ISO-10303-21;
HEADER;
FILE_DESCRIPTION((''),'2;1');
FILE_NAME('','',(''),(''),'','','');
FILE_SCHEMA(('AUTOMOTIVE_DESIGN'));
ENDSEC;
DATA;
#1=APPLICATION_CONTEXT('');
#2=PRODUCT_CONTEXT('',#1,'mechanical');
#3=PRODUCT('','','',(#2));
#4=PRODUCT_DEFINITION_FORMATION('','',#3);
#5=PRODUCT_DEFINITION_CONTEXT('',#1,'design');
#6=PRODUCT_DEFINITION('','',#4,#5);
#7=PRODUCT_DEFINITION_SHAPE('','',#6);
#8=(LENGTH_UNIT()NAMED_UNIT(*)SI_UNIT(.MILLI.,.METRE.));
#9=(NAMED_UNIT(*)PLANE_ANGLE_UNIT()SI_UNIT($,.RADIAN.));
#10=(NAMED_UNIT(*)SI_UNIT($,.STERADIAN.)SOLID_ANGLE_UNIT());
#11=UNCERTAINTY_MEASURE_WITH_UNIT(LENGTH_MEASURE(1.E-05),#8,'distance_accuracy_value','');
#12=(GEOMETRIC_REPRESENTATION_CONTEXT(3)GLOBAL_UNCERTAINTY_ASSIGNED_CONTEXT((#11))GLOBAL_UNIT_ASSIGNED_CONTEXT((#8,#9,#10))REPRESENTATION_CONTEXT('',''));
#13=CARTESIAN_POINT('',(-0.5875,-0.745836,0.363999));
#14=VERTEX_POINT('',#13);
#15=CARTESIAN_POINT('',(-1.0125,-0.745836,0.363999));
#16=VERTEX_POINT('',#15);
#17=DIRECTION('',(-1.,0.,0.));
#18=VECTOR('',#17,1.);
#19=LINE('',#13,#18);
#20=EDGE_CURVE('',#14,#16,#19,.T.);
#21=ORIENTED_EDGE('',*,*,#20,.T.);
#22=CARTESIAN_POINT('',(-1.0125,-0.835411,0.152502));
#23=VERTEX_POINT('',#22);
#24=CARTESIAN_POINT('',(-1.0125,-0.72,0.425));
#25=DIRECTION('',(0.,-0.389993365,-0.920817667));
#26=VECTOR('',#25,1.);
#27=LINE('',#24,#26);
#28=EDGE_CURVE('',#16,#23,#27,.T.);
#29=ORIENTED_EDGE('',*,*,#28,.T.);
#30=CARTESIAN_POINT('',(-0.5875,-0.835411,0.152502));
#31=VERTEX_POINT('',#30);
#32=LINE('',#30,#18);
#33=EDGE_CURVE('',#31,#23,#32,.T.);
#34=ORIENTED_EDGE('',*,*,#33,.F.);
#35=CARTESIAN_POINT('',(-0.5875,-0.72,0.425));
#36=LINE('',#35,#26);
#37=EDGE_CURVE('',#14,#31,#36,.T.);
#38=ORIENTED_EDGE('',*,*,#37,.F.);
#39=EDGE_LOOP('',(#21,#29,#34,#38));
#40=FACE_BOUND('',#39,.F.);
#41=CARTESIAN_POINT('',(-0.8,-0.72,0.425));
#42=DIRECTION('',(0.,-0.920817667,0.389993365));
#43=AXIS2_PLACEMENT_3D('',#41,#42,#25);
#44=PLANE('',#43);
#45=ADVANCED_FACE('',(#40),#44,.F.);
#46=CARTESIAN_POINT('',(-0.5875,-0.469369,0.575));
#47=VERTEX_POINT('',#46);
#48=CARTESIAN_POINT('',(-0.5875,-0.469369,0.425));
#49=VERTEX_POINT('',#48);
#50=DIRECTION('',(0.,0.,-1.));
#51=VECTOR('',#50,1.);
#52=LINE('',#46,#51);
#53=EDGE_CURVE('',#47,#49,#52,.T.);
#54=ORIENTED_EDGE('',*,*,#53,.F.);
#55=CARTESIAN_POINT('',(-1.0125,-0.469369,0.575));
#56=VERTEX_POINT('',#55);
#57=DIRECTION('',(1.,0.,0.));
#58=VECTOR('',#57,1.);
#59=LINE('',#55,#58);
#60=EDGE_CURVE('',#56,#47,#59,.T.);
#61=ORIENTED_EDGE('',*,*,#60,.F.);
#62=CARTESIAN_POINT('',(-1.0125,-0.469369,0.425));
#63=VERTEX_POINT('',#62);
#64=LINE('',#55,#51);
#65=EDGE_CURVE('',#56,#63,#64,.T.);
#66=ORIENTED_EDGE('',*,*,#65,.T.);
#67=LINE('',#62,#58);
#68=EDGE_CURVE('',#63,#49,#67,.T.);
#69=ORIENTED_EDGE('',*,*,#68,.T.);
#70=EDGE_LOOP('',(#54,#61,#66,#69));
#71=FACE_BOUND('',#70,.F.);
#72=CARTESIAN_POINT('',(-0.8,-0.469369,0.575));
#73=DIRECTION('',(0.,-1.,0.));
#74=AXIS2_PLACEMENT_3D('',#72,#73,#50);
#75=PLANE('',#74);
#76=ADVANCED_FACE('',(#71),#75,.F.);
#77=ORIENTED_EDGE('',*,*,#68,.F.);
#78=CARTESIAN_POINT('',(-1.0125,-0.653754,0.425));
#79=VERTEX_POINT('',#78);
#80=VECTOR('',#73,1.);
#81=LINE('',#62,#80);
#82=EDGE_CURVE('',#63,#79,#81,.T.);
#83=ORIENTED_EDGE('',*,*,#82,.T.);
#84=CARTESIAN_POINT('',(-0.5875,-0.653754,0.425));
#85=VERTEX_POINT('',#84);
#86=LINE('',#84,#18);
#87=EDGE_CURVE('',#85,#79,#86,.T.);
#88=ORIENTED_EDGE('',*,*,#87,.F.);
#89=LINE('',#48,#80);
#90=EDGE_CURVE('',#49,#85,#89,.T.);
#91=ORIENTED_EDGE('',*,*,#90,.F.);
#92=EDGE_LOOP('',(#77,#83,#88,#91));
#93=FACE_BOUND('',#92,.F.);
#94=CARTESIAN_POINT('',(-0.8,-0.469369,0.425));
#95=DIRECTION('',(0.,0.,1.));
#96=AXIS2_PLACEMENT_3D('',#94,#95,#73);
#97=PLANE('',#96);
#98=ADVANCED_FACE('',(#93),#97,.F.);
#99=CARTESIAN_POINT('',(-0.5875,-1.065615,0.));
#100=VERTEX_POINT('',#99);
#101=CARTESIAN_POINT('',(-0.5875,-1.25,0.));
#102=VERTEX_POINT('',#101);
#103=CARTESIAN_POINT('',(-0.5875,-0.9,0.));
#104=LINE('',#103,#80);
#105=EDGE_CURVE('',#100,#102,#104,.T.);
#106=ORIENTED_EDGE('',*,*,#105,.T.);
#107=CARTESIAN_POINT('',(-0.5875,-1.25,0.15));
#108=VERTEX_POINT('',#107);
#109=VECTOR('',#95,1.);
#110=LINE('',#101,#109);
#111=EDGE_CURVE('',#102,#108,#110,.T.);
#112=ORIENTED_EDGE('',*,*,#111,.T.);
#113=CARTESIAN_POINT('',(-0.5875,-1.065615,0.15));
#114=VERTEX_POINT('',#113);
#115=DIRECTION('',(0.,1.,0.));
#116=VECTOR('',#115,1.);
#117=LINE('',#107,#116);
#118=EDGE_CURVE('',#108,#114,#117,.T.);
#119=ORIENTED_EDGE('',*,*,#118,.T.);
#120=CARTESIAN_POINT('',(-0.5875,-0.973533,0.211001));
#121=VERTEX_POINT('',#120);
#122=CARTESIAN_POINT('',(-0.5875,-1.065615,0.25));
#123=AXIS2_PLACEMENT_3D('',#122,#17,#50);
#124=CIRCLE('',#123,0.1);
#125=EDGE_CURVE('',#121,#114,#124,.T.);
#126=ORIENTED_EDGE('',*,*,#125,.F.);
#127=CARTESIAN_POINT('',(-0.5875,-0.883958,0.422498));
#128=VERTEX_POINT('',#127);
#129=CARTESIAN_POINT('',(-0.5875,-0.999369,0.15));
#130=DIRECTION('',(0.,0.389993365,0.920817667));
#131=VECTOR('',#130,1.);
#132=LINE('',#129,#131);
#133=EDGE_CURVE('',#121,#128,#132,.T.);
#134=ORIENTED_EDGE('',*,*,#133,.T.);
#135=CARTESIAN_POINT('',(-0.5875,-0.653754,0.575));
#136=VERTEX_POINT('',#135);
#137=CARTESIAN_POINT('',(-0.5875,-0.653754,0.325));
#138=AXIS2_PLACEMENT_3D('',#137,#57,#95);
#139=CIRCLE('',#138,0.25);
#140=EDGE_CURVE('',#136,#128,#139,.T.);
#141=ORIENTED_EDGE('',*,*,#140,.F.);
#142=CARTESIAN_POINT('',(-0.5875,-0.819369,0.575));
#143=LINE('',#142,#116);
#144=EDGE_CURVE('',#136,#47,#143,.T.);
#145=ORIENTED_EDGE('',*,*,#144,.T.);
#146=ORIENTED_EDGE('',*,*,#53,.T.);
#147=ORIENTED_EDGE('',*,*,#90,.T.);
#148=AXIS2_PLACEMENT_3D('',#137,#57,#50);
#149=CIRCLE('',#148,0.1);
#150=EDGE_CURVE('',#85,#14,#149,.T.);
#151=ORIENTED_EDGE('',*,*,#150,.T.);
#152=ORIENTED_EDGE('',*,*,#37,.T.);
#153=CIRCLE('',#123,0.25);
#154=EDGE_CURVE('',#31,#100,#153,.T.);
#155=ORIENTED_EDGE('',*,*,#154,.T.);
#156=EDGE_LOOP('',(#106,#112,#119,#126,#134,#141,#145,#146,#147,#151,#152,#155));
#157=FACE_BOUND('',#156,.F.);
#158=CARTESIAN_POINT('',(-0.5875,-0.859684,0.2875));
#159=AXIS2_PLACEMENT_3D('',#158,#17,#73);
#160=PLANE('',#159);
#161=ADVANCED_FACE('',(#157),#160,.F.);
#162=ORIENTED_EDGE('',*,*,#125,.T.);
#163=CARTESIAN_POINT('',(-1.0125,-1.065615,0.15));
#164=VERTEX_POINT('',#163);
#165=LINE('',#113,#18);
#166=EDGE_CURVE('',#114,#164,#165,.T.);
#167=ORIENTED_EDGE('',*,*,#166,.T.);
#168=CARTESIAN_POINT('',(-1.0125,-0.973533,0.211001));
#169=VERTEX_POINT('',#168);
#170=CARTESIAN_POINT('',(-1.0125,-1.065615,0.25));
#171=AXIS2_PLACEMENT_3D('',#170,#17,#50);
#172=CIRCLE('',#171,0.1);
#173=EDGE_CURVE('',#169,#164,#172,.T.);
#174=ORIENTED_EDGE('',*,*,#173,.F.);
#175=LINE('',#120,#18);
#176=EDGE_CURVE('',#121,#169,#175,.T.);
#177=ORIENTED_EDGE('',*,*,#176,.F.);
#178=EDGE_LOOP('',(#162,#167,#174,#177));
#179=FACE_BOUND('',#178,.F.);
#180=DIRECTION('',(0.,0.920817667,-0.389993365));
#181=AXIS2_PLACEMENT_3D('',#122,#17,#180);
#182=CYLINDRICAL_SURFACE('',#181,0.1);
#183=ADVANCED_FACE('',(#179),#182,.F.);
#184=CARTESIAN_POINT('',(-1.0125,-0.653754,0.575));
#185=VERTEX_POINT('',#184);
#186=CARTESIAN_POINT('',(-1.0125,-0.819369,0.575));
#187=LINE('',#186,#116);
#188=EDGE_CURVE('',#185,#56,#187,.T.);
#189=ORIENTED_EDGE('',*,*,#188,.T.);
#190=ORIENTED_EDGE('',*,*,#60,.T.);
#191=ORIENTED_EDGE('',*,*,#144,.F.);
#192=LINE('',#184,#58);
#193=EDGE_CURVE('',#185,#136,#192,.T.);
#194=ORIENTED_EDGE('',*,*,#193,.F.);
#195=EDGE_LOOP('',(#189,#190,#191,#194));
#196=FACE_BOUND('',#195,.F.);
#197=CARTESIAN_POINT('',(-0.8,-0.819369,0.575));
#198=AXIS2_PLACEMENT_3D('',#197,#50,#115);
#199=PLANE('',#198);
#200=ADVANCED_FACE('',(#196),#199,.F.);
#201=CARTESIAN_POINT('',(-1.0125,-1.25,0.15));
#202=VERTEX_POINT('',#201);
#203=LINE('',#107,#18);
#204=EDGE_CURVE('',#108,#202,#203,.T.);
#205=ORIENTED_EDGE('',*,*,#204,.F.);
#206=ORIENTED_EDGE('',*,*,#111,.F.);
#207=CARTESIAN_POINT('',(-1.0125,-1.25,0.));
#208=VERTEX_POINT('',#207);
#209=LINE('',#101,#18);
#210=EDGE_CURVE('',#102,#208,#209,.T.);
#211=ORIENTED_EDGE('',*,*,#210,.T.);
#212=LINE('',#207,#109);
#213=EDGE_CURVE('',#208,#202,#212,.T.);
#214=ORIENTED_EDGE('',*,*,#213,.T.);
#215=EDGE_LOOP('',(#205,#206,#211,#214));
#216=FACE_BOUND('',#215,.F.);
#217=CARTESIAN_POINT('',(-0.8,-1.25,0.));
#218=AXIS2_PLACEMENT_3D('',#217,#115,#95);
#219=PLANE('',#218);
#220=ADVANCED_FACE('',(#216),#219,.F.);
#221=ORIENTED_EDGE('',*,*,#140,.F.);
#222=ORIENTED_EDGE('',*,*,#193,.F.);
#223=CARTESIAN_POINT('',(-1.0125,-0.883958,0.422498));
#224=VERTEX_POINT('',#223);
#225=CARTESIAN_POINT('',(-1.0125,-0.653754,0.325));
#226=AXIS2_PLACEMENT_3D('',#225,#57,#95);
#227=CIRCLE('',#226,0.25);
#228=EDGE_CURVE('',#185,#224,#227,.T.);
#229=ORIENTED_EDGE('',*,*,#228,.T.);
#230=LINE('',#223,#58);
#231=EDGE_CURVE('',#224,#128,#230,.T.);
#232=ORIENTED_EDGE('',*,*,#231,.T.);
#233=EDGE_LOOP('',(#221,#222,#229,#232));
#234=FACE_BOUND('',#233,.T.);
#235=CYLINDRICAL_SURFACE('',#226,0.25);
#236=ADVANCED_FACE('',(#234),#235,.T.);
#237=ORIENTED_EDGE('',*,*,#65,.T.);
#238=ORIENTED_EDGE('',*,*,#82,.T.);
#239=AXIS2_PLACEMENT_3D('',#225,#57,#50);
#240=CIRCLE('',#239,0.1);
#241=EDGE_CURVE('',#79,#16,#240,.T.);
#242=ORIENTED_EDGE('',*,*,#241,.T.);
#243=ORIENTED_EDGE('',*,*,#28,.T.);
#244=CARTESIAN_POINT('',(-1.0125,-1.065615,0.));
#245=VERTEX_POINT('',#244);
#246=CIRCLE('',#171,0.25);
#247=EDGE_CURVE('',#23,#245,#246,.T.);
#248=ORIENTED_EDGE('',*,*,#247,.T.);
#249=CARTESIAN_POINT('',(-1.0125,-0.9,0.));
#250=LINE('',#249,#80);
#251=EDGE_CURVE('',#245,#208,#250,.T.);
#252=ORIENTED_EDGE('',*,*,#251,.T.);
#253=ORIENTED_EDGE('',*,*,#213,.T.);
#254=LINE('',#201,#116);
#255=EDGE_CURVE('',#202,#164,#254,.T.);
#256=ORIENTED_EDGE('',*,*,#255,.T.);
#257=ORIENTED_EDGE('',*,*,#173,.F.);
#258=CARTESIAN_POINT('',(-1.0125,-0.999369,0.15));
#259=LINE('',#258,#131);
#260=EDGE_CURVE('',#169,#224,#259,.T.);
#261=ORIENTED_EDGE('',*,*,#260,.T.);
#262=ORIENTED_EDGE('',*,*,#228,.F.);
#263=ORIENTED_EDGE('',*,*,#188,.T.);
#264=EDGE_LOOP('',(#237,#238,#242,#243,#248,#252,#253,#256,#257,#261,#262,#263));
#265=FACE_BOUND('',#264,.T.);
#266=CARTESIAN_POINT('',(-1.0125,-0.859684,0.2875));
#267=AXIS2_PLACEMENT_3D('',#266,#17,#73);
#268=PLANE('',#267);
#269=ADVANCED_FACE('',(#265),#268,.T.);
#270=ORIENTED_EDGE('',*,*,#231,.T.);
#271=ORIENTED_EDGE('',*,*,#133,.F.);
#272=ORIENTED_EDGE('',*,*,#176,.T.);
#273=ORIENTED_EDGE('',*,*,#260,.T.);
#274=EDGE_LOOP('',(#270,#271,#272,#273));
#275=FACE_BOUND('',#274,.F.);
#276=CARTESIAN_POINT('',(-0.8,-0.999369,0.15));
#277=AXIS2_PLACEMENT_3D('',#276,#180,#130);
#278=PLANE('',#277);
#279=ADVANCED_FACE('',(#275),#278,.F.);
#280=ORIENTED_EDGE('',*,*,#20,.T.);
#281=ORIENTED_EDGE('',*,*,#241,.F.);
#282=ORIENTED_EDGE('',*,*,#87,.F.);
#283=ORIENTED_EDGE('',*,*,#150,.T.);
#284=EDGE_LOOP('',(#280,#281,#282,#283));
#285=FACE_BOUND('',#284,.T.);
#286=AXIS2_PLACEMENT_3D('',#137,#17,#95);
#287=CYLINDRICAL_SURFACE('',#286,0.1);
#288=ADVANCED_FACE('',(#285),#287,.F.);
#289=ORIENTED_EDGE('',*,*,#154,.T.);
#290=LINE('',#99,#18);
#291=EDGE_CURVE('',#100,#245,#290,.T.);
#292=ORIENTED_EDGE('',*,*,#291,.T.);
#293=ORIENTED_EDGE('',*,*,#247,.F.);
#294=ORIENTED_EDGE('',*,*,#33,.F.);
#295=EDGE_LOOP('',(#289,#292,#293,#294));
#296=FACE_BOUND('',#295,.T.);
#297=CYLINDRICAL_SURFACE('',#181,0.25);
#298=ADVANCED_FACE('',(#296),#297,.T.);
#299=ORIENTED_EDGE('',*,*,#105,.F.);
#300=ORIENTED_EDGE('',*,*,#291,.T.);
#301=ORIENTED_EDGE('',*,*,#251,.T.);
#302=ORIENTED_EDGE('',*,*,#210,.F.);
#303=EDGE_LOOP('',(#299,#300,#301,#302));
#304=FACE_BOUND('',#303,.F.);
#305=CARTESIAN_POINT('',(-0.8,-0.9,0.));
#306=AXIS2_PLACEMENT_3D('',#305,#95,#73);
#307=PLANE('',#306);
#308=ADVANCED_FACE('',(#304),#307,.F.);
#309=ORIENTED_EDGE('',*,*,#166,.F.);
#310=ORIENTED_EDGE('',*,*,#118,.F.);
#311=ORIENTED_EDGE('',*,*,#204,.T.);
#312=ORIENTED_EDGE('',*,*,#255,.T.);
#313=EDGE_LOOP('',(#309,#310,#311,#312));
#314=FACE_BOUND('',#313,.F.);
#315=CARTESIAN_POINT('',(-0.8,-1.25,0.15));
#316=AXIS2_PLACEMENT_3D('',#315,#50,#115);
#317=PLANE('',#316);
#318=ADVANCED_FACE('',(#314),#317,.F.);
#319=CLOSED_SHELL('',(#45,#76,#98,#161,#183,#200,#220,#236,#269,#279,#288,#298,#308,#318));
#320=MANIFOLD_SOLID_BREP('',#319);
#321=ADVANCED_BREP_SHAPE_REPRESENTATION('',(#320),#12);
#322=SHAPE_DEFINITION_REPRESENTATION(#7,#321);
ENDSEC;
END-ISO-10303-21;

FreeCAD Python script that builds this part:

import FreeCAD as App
import Part
import Sketcher

V = App.Vector
Q = App.Units.Quantity


def edges_at(feature, points):
    """Names of the edges that pass closest to the given points."""
    edges = feature.Shape.Edges
    near = lambda p: min(range(len(edges)), key=lambda i: edges[i].distToShape(Part.Vertex(*p))[0])
    return sorted({f"Edge{near(p) + 1}" for p in points})


def add_polygon(sketch, points):
    """Adds a closed chain of lines whose ends are joined by coincident constraints."""
    first, n = sketch.GeometryCount, len(points)
    for a, b in zip(points, points[1:] + points[:1]):
        sketch.addGeometry(Part.LineSegment(App.Vector(*a, 0), App.Vector(*b, 0)), False)
    for i in range(n):
        sketch.addConstraint(Sketcher.Constraint("Coincident", first + i, 2, first + (i + 1) % n, 1))

doc = App.newDocument("Part")
body = doc.addObject("PartDesign::Body", "Body")

# Sketch on YZ plane
sketch1 = body.newObject("Sketcher::SketchObject", "Sketch")
sketch1.AttachmentSupport = (doc.getObject("YZ_Plane"), [""])
sketch1.MapMode = "FlatFace"
add_polygon(sketch1, [(-0.72, 0.425), (-0.469369, 0.425), (-0.469369, 0.575), (-0.819369, 0.575), (-0.999369, 0.15), (-1.25, 0.15), (-1.25, 0), (-0.9, 0)])  # lines 0-7
sketch1.addConstraint([
    Sketcher.Constraint("Horizontal", 0),
    Sketcher.Constraint("Vertical", 1),
    Sketcher.Constraint("Horizontal", 2),
    Sketcher.Constraint("Horizontal", 4),
    Sketcher.Constraint("Vertical", 5),
    Sketcher.Constraint("Horizontal", 6),
    Sketcher.Constraint("PointOnObject", 5, 2, -1),
    Sketcher.Constraint("Parallel", 3, 7),
    Sketcher.Constraint("Equal", 0, 4),
    Sketcher.Constraint("Equal", 2, 6),
    Sketcher.Constraint("DistanceX", 2, 2, 2, 1, Q("0.35 mm")),
    Sketcher.Constraint("DistanceY", 1, 1, 1, 2, Q("0.15 mm")),
    Sketcher.Constraint("DistanceX", 6, 2, -1, 1, Q("0.9 mm")),
    Sketcher.Constraint("DistanceX", 7, 2, -1, 1, Q("0.72 mm")),
    Sketcher.Constraint("DistanceY", -1, 1, 0, 2, Q("0.425 mm")),
    Sketcher.Constraint("DistanceX", 0, 1, 0, 2, Q("0.250631 mm")),
])
pad1 = body.newObject("PartDesign::Pad", "Pad")
pad1.Profile = sketch1
pad1.Length = 0.425
pad1.Midplane = True
doc.recompute()

fillet = body.newObject("PartDesign::Fillet", "Fillet")
fillet.Base = (pad1, edges_at(pad1, [(0, -0.999, 0.15), (0, -0.72, 0.425)]))
fillet.Radius = 0.1
doc.recompute()

fillet2 = body.newObject("PartDesign::Fillet", "Fillet001")
fillet2.Base = (fillet, edges_at(fillet, [(0, -0.9, 0), (0, -0.819, 0.575)]))
fillet2.Radius = 0.25
body2 = doc.addObject("PartDesign::Body", "Body001")
doc.recompute()

body.Placement = App.Placement(V(-0.8, 0, 0), App.Rotation(V(0, 0, 1), 0))
boolean = body2.newObject("PartDesign::Boolean", "Boolean")
boolean.Type = "Fuse"
boolean.addObjects([body])

doc.recompute()
